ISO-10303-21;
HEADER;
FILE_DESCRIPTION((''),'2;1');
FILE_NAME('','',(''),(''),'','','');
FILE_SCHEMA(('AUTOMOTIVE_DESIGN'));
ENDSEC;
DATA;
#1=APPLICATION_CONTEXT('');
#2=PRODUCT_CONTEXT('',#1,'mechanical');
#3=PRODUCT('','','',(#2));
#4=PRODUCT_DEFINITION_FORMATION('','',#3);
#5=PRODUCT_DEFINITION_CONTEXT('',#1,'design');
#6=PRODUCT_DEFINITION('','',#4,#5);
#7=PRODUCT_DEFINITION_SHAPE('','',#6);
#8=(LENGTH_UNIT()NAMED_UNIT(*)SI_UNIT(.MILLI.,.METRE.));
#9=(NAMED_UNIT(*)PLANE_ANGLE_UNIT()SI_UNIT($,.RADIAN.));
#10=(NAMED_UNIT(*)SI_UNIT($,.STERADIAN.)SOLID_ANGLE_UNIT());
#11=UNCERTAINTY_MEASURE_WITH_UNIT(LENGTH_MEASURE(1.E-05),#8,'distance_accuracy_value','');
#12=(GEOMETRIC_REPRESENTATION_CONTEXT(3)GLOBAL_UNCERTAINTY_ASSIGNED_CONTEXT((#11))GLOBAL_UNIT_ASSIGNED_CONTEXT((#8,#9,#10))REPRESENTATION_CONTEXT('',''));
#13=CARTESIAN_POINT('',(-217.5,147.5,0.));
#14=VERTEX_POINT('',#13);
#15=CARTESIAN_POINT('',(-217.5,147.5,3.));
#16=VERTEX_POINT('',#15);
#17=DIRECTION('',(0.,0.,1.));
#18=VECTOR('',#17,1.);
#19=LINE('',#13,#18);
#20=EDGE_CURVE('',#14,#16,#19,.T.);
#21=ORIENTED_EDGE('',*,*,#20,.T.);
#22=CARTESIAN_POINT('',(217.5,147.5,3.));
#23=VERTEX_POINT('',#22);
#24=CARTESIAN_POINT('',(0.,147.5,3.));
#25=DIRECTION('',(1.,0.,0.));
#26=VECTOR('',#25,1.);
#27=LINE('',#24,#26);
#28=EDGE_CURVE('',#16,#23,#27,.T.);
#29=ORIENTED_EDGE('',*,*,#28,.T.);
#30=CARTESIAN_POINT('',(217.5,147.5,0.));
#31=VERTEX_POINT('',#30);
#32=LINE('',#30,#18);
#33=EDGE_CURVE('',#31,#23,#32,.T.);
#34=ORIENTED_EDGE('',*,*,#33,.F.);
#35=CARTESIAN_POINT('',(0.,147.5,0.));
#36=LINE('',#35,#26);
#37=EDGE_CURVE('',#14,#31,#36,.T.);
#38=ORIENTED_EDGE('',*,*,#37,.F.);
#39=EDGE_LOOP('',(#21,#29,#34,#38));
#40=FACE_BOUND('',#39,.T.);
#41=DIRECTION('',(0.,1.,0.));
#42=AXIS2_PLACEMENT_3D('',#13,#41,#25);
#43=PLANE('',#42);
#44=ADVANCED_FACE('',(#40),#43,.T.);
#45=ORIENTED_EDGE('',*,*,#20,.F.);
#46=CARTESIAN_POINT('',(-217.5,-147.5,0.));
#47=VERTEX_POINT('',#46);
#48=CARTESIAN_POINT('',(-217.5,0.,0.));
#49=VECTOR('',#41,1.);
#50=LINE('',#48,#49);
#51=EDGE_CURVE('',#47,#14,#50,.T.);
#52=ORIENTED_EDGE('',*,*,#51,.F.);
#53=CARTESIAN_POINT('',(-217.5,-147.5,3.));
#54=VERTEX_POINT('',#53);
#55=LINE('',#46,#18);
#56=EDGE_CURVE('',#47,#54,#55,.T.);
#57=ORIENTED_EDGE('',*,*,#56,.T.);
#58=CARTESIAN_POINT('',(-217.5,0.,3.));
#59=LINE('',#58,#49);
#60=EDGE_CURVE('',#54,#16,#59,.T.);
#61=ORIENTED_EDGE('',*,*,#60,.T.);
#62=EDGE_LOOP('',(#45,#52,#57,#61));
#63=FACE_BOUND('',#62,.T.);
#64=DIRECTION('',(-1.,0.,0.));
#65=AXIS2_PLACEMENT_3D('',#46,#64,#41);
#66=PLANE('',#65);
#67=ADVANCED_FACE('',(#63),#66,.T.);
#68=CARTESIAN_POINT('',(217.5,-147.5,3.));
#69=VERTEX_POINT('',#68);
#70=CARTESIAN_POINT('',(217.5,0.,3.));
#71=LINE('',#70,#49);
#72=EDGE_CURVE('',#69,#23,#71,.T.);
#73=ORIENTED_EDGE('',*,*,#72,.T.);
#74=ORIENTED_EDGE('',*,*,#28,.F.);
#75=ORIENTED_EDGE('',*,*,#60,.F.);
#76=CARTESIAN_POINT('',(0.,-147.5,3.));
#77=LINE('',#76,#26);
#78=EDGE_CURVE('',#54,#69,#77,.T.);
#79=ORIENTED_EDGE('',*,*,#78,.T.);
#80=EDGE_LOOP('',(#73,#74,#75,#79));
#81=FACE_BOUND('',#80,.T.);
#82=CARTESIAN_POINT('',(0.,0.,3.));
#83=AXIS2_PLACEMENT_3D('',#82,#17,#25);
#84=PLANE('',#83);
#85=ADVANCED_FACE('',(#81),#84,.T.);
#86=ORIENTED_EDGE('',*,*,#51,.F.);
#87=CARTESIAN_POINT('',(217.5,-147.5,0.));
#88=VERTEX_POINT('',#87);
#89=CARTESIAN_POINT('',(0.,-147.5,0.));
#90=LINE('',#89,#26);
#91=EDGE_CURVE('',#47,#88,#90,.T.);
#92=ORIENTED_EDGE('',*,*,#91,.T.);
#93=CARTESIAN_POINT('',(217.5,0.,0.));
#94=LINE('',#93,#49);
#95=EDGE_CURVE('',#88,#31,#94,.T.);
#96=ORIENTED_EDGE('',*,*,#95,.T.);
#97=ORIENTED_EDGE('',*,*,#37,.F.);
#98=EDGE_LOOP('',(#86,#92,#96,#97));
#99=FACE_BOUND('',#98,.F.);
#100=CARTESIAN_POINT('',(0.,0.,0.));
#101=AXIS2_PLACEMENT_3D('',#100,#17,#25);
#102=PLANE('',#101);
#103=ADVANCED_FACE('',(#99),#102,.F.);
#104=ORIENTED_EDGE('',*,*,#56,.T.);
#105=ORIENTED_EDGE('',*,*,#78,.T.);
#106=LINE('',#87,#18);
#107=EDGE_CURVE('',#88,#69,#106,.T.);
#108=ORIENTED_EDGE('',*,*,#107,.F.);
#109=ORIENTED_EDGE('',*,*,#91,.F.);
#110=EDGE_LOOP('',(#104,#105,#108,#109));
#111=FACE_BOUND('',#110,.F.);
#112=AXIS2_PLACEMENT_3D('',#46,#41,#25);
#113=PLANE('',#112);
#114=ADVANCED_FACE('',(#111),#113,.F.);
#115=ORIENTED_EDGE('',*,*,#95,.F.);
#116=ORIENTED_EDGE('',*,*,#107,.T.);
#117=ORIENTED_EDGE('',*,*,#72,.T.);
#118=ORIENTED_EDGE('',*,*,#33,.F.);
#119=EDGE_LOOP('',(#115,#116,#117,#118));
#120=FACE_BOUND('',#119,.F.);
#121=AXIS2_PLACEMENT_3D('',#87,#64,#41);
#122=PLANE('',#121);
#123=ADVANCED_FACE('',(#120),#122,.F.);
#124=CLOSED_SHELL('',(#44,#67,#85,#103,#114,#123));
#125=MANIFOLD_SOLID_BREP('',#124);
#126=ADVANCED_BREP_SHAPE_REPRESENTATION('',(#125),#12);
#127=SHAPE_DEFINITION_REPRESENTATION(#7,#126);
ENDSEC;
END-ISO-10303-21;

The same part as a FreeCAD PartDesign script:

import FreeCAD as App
import Part
import Sketcher

V = App.Vector
Q = App.Units.Quantity

doc = App.newDocument("Part")
body = doc.addObject("PartDesign::Body", "Body")

sketch1 = body.newObject("Sketcher::SketchObject", "Sketch")
sketch1.AttachmentSupport = (doc.getObject("XY_Plane"), [""])
sketch1.MapMode = "FlatFace"
sketch1.addGeometry(Part.LineSegment(V(-218, 148, 0), V(-218, -148, 0)), False)
sketch1.addGeometry(Part.LineSegment(V(-218, -148, 0), V(218, -148, 0)), False)
sketch1.addGeometry(Part.LineSegment(V(218, -148, 0), V(218, 148, 0)), False)
sketch1.addGeometry(Part.LineSegment(V(218, 148, 0), V(-218, 148, 0)), False)
sketch1.addConstraint(Sketcher.Constraint("Coincident", 0, 2, 1, 1))
sketch1.addConstraint(Sketcher.Constraint("Coincident", 1, 2, 2, 1))
sketch1.addConstraint(Sketcher.Constraint("Coincident", 2, 2, 3, 1))
sketch1.addConstraint(Sketcher.Constraint("Coincident", 3, 2, 0, 1))
sketch1.addConstraint(Sketcher.Constraint("Vertical", 0))
sketch1.addConstraint(Sketcher.Constraint("Horizontal", 1))
sketch1.addConstraint(Sketcher.Constraint("Vertical", 2))
sketch1.addConstraint(Sketcher.Constraint("Horizontal", 3))
sketch1.addConstraint(Sketcher.Constraint("Symmetric", 0, 2, 2, 2, -1, 1))
sketch1.addConstraint(Sketcher.Constraint("DistanceX", 1, 1, 1, 2, Q("435 mm")))
sketch1.addConstraint(Sketcher.Constraint("DistanceY", 0, 2, 0, 1, Q("295 mm")))
pad1 = body.newObject("PartDesign::Pad", "Pad")
pad1.Profile = sketch1
pad1.Length = 3

doc.recompute()
